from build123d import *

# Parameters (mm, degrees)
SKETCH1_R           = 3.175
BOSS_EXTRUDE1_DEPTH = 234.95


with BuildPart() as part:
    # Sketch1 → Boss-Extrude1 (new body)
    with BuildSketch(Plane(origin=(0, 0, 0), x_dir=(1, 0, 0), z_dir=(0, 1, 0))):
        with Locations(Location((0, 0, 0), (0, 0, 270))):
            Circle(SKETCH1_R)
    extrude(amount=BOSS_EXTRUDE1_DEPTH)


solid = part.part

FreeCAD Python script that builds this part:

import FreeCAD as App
import Part
import Sketcher
Q = App.Units.Quantity

doc = App.newDocument("Part")
body = doc.addObject("PartDesign::Body", "Body")

sketch1 = body.newObject("Sketcher::SketchObject", "Sketch")
sketch1.AttachmentSupport = (doc.getObject("XZ_Plane"), [""])
sketch1.MapMode = "FlatFace"
sketch1.addGeometry(Part.Circle(App.Vector(0, 0, 0), App.Vector(0, 0, 1), 3.2), False)
sketch1.addConstraint(Sketcher.Constraint("Coincident", 0, 3, -1, 1))
sketch1.addConstraint(Sketcher.Constraint("Diameter", 0, Q("0.25 in")))
pad1 = body.newObject("PartDesign::Pad", "Pad")
pad1.Profile = sketch1
pad1.Length = Q("9.25 in")
pad1.Reversed = True

doc.recompute()
